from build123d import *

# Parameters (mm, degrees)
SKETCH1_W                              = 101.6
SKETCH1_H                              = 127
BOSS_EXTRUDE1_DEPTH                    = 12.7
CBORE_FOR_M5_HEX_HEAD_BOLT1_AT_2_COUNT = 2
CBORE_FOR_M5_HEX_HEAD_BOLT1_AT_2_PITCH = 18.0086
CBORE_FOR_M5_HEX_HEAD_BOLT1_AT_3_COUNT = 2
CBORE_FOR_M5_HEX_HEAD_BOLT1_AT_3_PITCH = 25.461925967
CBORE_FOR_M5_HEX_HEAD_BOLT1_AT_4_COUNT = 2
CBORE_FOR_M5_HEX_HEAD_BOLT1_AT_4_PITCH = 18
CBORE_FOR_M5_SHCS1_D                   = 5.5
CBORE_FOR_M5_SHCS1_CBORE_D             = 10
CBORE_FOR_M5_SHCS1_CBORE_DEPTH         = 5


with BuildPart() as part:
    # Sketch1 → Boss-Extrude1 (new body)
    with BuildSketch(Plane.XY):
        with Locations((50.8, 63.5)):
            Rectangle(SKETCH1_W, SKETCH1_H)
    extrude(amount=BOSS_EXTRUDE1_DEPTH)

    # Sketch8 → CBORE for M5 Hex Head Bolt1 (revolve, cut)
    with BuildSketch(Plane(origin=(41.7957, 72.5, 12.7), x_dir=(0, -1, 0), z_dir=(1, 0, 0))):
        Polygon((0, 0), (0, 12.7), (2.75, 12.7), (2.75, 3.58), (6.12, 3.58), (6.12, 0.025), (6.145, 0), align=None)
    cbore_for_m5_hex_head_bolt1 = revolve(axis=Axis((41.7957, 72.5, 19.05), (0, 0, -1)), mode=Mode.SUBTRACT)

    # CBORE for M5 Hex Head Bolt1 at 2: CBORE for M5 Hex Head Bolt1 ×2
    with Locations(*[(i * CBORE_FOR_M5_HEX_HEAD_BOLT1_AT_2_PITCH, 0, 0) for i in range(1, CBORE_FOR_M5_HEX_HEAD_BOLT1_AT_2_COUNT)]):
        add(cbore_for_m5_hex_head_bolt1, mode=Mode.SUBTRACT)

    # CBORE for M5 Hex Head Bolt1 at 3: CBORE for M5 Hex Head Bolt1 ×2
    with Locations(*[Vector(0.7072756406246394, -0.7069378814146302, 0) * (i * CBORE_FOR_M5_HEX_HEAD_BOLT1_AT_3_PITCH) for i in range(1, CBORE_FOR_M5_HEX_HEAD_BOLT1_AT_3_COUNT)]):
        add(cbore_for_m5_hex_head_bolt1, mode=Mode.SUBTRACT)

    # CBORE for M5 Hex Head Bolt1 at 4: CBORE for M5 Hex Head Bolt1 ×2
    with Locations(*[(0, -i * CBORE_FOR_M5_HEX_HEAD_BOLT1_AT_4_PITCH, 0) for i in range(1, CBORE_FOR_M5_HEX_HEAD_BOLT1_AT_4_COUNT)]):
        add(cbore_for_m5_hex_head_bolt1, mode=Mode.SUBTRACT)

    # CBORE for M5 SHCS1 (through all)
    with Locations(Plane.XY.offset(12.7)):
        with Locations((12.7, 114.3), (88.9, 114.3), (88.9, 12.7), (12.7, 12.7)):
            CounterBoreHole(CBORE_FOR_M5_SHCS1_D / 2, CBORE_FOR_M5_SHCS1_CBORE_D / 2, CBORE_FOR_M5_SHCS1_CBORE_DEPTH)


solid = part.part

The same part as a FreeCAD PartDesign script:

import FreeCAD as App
import Part
import Sketcher
from FreeCAD import Vector
Q = App.Units.Quantity


def add_polygon(sketch, points):
    """Adds a closed chain of lines whose ends are joined by coincident constraints."""
    first, n = sketch.GeometryCount, len(points)
    for a, b in zip(points, points[1:] + points[:1]):
        sketch.addGeometry(Part.LineSegment(App.Vector(*a, 0), App.Vector(*b, 0)), False)
    for i in range(n):
        sketch.addConstraint(Sketcher.Constraint("Coincident", first + i, 2, first + (i + 1) % n, 1))

doc = App.newDocument("Part")
body = doc.addObject("PartDesign::Body", "Body")

sketch1 = body.newObject("Sketcher::SketchObject", "Sketch")
sketch1.AttachmentSupport = (doc.getObject("XY_Plane"), [""])
sketch1.MapMode = "FlatFace"
add_polygon(sketch1, [(0, 127), (0, 0), (102, 0), (102, 127)])
sketch1.addConstraint([
    Sketcher.Constraint("Vertical", 0),
    Sketcher.Constraint("Horizontal", 1),
    Sketcher.Constraint("Vertical", 2),
    Sketcher.Constraint("Horizontal", 3),
    Sketcher.Constraint("Coincident", 0, 2, -1, 1),
    Sketcher.Constraint("DistanceX", 1, 1, 1, 2, Q("4 in")),
    Sketcher.Constraint("DistanceY", 0, 2, 0, 1, Q("5 in")),
])
pad1 = body.newObject("PartDesign::Pad", "Pad")
pad1.Profile = sketch1
pad1.Length = Q("0.5 in")

sketch2 = body.newObject("Sketcher::SketchObject", "Sketch001")
sketch2.AttachmentSupport = (doc.getObject("YZ_Plane"), [""])
sketch2.MapMode = "FlatFace"
sketch2.AttachmentOffset = App.Placement(Vector(0, 0, 1.6455 * 25.4), App.Rotation())
add_polygon(sketch2, [(72.5, 0), (72.5, 12.7), (66.355, 12.7), (66.38, 12.675), (66.38, 9.12), (69.75, 9.12), (69.75, 0)])
sketch2.addGeometry(Part.LineSegment(Vector(72.5, 12.7, 0), Vector(72.5, 0, 0)), True)
sketch2.addConstraint([
    Sketcher.Constraint("Vertical", 0),
    Sketcher.Constraint("Horizontal", 1),
    Sketcher.Constraint("Vertical", 3),
    Sketcher.Constraint("Horizontal", 4),
    Sketcher.Constraint("Vertical", 5),
    Sketcher.Constraint("Horizontal", 6),
    Sketcher.Constraint("Vertical", 7),
    Sketcher.Constraint("Coincident", 7, 1, 0, 2),
    Sketcher.Constraint("PointOnObject", 5, 2, -1),
    Sketcher.Constraint("PointOnObject", 7, 2, -1),
    Sketcher.Constraint("DistanceY", 0, 1, 0, 2, Q("0.5 in")),
    Sketcher.Constraint("Angle", 2, Q("-45 deg")),
    Sketcher.Constraint("DistanceX", 1, 2, 1, 1, Q("6.145 mm")),
    Sketcher.Constraint("DistanceX", 4, 1, 4, 2, Q("3.37 mm")),
    Sketcher.Constraint("DistanceX", 6, 1, 6, 2, Q("2.75 mm")),
    Sketcher.Constraint("DistanceY", 3, 2, 3, 1, Q("3.555 mm")),
    Sketcher.Constraint("DistanceX", -1, 1, 0, 2, Q("72.5 mm")),
])
groove = body.newObject("PartDesign::Groove", "Groove")
groove.Profile = sketch2
groove.ReferenceAxis = (sketch2, ["Axis0"])
groove.Angle = 360
doc.recompute()

linearpattern = body.newObject("PartDesign::LinearPattern", "LinearPattern")
linearpattern.Originals = [groove]
linearpattern.Direction = (doc.getObject("X_Axis"), [""])
linearpattern.Mode = "offset"
linearpattern.Offset = Q("0.709 in")
linearpattern.Occurrences = 2
body.Tip = linearpattern
doc.recompute()

datumline = body.newObject("PartDesign::Line", "DatumLine")
datumline.Placement = App.Placement(Vector(0, 0, 0), App.Rotation(Vector(0, 0, 1), Vector(0.707275641, -0.706937881, 0)))
linearpattern2 = body.newObject("PartDesign::LinearPattern", "LinearPattern001")
linearpattern2.Originals = [groove]
linearpattern2.Direction = (datumline, [""])
linearpattern2.Mode = "offset"
linearpattern2.Offset = 25.461926
linearpattern2.Occurrences = 2
body.Tip = linearpattern2
doc.recompute()

linearpattern3 = body.newObject("PartDesign::LinearPattern", "LinearPattern002")
linearpattern3.Originals = [groove]
linearpattern3.Direction = (doc.getObject("Y_Axis"), [""])
linearpattern3.Mode = "offset"
linearpattern3.Offset = 18
linearpattern3.Occurrences = 2
linearpattern3.Reversed = True
body.Tip = linearpattern3

sketch3 = body.newObject("Sketcher::SketchObject", "Sketch002")
sketch3.AttachmentSupport = (doc.getObject("XY_Plane"), [""])
sketch3.MapMode = "FlatFace"
sketch3.AttachmentOffset = App.Placement(Vector(0, 0, 0.5 * 25.4), App.Rotation())
sketch3.addGeometry([
    Part.Circle(Vector(12.7, 114.3, 0), Vector(0, 0, 1), 2.8),
    Part.Circle(Vector(88.9, 114.3, 0), Vector(0, 0, 1), 2.8),
    Part.Circle(Vector(88.9, 12.7, 0), Vector(0, 0, 1), 2.8),
    Part.Circle(Vector(12.7, 12.7, 0), Vector(0, 0, 1), 2.8),
], False)
sketch3.addConstraint([
    Sketcher.Constraint("Equal", 0, 1),
    Sketcher.Constraint("Equal", 1, 2),
    Sketcher.Constraint("Equal", 2, 3),
    Sketcher.Constraint("Horizontal", 0, 3, 1, 3),
    Sketcher.Constraint("Horizontal", 2, 3, 3, 3),
    Sketcher.Constraint("Vertical", 1, 3, 2, 3),
    Sketcher.Constraint("Vertical", 0, 3, 3, 3),
    Sketcher.Constraint("DistanceX", 0, 3, 1, 3, Q("3 in")),
    Sketcher.Constraint("DistanceY", 2, 3, 1, 3, Q("4 in")),
    Sketcher.Constraint("DistanceX", -1, 1, 0, 3, Q("0.5 in")),
    Sketcher.Constraint("DistanceY", -1, 1, 0, 3, Q("4.5 in")),
    Sketcher.Constraint("Diameter", 0, Q("5.5 mm")),
])
doc.recompute()
hole = body.newObject("PartDesign::Hole", "Hole")
hole.Profile = sketch3
hole.ThreadType = "None"
hole.Diameter = 5.5
hole.DepthType = "ThroughAll"
hole.HoleCutType = "Counterbore"
hole.HoleCutDiameter = 10
hole.HoleCutDepth = 5

doc.recompute()
